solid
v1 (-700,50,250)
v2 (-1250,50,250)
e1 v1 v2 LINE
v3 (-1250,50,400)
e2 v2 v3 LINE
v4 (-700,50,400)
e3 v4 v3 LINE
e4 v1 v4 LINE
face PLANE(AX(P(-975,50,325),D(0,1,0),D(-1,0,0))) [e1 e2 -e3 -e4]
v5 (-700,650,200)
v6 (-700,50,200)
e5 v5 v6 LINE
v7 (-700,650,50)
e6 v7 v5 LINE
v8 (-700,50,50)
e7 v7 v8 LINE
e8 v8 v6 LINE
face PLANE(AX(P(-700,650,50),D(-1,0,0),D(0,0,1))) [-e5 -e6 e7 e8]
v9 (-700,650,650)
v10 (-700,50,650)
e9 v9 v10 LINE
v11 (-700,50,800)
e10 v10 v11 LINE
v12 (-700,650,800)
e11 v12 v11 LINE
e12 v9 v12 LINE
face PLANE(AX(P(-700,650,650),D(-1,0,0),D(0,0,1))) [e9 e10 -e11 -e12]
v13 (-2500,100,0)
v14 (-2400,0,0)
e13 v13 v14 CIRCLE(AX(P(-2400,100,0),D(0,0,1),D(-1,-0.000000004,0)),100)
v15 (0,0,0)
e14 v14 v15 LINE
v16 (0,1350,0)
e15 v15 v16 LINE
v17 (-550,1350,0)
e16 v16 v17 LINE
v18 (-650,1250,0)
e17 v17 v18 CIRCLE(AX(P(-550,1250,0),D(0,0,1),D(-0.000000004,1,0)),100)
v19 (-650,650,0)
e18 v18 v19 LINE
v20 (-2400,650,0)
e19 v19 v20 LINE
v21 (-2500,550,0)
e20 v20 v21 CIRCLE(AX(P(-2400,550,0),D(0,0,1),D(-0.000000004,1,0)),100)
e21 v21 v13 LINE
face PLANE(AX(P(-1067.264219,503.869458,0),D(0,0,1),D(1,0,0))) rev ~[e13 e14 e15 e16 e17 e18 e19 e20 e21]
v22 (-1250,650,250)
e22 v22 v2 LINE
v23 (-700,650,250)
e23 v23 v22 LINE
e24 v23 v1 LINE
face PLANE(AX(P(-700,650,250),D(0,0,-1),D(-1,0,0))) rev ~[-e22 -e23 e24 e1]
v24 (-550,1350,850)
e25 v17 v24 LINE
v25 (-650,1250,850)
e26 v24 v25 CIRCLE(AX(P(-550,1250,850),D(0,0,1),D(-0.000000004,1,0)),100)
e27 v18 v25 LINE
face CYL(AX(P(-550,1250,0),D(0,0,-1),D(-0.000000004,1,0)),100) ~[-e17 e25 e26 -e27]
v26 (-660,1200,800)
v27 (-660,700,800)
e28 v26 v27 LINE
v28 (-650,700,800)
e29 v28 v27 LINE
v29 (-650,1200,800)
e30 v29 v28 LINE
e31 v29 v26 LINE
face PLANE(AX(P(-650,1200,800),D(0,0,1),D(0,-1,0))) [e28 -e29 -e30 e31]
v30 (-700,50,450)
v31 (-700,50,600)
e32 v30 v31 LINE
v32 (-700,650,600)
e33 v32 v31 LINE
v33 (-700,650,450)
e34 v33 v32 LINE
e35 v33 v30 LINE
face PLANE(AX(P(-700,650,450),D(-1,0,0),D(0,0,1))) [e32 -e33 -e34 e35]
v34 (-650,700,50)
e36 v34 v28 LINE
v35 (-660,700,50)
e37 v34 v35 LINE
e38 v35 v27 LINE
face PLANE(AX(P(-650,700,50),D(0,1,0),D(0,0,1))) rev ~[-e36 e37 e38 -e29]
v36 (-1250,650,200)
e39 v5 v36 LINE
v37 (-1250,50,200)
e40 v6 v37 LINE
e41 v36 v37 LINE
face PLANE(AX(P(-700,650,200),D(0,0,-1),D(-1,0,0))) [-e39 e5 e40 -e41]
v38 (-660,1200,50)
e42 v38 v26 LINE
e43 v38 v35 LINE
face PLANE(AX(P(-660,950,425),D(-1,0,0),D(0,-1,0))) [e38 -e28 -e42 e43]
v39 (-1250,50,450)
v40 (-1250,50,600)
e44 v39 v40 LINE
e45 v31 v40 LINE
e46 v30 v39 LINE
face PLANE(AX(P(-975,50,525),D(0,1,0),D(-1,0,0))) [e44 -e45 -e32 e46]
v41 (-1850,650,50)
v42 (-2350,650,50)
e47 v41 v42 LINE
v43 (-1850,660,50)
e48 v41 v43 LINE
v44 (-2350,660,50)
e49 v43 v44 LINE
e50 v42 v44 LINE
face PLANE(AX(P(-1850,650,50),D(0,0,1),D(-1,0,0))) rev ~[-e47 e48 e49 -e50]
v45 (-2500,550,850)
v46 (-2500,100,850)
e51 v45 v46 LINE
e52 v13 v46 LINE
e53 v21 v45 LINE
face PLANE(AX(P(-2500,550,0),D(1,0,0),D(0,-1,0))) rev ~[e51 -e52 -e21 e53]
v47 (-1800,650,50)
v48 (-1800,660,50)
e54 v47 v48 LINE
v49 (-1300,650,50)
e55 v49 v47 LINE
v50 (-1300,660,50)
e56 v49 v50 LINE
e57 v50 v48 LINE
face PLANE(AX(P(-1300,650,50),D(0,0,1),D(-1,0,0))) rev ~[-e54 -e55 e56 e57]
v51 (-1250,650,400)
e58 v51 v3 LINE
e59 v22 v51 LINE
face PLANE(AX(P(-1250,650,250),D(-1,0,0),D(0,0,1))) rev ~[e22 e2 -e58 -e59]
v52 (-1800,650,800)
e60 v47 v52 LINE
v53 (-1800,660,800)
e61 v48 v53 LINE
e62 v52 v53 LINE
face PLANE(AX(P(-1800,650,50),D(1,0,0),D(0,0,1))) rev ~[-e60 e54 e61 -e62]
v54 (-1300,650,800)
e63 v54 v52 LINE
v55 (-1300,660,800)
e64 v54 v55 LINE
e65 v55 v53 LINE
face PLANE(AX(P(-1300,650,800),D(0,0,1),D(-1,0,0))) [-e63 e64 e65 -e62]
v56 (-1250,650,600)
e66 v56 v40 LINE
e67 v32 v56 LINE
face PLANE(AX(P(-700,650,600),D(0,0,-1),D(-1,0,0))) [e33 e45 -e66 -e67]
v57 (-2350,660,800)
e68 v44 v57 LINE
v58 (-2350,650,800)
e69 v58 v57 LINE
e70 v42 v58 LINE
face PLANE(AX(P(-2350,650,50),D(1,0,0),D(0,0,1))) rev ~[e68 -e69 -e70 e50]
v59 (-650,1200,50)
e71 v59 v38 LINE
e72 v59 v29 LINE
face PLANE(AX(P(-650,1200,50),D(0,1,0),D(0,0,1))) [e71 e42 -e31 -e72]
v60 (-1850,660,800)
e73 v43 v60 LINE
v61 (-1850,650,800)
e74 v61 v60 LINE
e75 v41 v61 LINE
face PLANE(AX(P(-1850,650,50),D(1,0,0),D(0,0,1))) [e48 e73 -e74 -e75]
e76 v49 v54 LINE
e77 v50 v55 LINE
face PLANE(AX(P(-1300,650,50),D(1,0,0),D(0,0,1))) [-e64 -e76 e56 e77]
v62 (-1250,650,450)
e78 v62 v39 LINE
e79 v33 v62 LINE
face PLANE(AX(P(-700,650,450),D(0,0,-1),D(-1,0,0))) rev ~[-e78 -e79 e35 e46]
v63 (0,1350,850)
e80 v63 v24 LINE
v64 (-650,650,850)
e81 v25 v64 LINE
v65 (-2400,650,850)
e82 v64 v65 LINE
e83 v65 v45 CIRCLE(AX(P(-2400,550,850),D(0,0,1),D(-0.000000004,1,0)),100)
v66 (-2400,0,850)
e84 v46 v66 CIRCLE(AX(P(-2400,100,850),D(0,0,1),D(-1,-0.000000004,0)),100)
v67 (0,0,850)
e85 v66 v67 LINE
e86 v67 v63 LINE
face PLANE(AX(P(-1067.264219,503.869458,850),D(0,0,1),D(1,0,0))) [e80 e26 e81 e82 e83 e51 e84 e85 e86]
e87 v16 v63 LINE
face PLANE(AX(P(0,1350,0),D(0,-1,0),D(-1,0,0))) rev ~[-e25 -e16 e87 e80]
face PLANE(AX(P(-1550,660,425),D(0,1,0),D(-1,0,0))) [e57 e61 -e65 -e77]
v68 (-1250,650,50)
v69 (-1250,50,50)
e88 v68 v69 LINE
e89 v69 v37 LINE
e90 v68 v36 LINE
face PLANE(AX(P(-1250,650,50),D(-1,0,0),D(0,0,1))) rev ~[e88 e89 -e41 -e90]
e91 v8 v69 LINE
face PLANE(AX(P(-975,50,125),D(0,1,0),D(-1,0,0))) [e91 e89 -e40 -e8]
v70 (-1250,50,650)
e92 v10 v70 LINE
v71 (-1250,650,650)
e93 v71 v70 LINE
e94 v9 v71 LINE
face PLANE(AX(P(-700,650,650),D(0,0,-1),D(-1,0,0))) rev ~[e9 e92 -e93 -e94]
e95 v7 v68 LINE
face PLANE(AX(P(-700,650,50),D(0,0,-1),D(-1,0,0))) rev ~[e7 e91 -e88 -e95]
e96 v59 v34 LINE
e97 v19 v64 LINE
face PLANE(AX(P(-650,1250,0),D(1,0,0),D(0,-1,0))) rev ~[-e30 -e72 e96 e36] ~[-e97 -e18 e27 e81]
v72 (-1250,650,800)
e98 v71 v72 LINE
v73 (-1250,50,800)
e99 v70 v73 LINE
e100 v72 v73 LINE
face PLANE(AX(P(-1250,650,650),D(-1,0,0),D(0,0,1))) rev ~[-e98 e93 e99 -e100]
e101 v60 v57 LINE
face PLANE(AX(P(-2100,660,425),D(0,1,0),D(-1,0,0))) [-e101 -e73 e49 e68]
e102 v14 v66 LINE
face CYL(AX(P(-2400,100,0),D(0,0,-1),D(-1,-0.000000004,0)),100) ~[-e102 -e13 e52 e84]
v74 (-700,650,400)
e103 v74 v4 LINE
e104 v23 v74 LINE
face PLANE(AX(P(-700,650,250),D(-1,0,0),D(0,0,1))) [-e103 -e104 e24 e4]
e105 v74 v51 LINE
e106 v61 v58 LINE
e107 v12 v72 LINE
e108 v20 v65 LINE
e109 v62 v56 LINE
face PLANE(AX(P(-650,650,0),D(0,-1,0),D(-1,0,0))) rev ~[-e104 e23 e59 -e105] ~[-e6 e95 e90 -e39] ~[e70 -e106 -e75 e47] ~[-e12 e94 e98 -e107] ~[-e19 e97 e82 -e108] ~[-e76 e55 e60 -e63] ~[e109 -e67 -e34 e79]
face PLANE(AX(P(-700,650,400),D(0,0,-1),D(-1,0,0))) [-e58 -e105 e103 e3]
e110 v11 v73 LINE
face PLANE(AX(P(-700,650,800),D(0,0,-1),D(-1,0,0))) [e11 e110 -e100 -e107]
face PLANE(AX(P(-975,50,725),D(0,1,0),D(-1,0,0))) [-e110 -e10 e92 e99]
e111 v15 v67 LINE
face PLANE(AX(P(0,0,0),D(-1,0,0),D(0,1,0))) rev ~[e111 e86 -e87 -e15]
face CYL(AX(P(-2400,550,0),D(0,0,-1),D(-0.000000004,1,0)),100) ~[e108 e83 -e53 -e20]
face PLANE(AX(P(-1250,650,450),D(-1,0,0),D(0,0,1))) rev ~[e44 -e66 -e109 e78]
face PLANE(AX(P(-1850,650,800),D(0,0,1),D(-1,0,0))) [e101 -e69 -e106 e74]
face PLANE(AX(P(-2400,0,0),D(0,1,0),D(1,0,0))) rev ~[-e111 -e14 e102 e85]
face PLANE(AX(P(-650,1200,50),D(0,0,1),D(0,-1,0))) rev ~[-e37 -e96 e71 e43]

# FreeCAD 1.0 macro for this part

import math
import FreeCAD as App
import Part
import Sketcher
Q = App.Units.Quantity


def add_polygon(sketch, points):
    """Adds a closed chain of lines whose ends are joined by coincident constraints."""
    first, n = sketch.GeometryCount, len(points)
    for a, b in zip(points, points[1:] + points[:1]):
        sketch.addGeometry(Part.LineSegment(App.Vector(*a, 0), App.Vector(*b, 0)), False)
    for i in range(n):
        sketch.addConstraint(Sketcher.Constraint("Coincident", first + i, 2, first + (i + 1) % n, 1))

doc = App.newDocument("Part")
body = doc.addObject("PartDesign::Body", "Body")

# Sketch on XY plane
sketch1 = body.newObject("Sketcher::SketchObject", "Sketch")
sketch1.AttachmentSupport = (doc.getObject("XY_Plane"), [""])
sketch1.MapMode = "FlatFace"
sketch1.addGeometry(Part.LineSegment(App.Vector(-2400, 0, 0), App.Vector(0, 0, 0)), False)
sketch1.addGeometry(Part.LineSegment(App.Vector(0, 0, 0), App.Vector(0, 1350, 0)), False)
sketch1.addGeometry(Part.LineSegment(App.Vector(0, 1350, 0), App.Vector(-550, 1350, 0)), False)
sketch1.addGeometry(Part.ArcOfCircle(Part.Circle(App.Vector(-550, 1250, 0), App.Vector(0, 0, 1), 100), math.radians(90), math.radians(180)), False)
sketch1.addGeometry(Part.LineSegment(App.Vector(-650, 1250, 0), App.Vector(-650, 650, 0)), False)
sketch1.addGeometry(Part.LineSegment(App.Vector(-650, 650, 0), App.Vector(-2400, 650, 0)), False)
sketch1.addGeometry(Part.ArcOfCircle(Part.Circle(App.Vector(-2400, 550, 0), App.Vector(0, 0, 1), 100), math.radians(90), math.radians(180)), False)
sketch1.addGeometry(Part.LineSegment(App.Vector(-2500, 550, 0), App.Vector(-2500, 100, 0)), False)
sketch1.addGeometry(Part.ArcOfCircle(Part.Circle(App.Vector(-2400, 100, 0), App.Vector(0, 0, 1), 100), math.radians(-180), math.radians(-90)), False)
sketch1.addConstraint(Sketcher.Constraint("Coincident", 0, 2, 1, 1))
sketch1.addConstraint(Sketcher.Constraint("Coincident", 1, 2, 2, 1))
sketch1.addConstraint(Sketcher.Constraint("Tangent", 2, 2, 3, 1))
sketch1.addConstraint(Sketcher.Constraint("Tangent", 3, 2, 4, 1))
sketch1.addConstraint(Sketcher.Constraint("Coincident", 4, 2, 5, 1))
sketch1.addConstraint(Sketcher.Constraint("Tangent", 5, 2, 6, 1))
sketch1.addConstraint(Sketcher.Constraint("Tangent", 6, 2, 7, 1))
sketch1.addConstraint(Sketcher.Constraint("Tangent", 7, 2, 8, 1))
sketch1.addConstraint(Sketcher.Constraint("Tangent", 8, 2, 0, 1))
sketch1.addConstraint(Sketcher.Constraint("Horizontal", 0))
sketch1.addConstraint(Sketcher.Constraint("Vertical", 1))
sketch1.addConstraint(Sketcher.Constraint("Horizontal", 2))
sketch1.addConstraint(Sketcher.Constraint("Vertical", 4))
sketch1.addConstraint(Sketcher.Constraint("Horizontal", 5))
sketch1.addConstraint(Sketcher.Constraint("Vertical", 7))
sketch1.addConstraint(Sketcher.Constraint("Coincident", 0, 2, -1, 1))
sketch1.addConstraint(Sketcher.Constraint("Equal", 3, 6))
sketch1.addConstraint(Sketcher.Constraint("Equal", 6, 8))
sketch1.addConstraint(Sketcher.Constraint("Radius", 3, Q("100 mm")))
sketch1.addConstraint(Sketcher.Constraint("DistanceX", 0, 1, 0, 2, Q("2400 mm")))
sketch1.addConstraint(Sketcher.Constraint("DistanceX", 2, 2, 2, 1, Q("550 mm")))
sketch1.addConstraint(Sketcher.Constraint("DistanceY", 1, 1, 1, 2, Q("1350 mm")))
sketch1.addConstraint(Sketcher.Constraint("DistanceY", 4, 2, 4, 1, Q("600 mm")))
pad1 = body.newObject("PartDesign::Pad", "Pad")
pad1.Profile = sketch1
pad1.Length = 850

# Sketch on XZ plane
sketch2 = body.newObject("Sketcher::SketchObject", "Sketch001")
sketch2.AttachmentSupport = (doc.getObject("XZ_Plane"), [""])
sketch2.MapMode = "FlatFace"
sketch2.AttachmentOffset = App.Placement(App.Vector(0, 0, -650), App.Rotation())
add_polygon(sketch2, [(-700, 800), (-700, 650), (-1250, 650), (-1250, 800)])  # lines 0-3
add_polygon(sketch2, [(-700, 600), (-700, 450), (-1250, 450), (-1250, 600)])  # lines 4-7
add_polygon(sketch2, [(-700, 400), (-700, 250), (-1250, 250), (-1250, 400)])  # lines 8-11
add_polygon(sketch2, [(-700, 200), (-700, 50), (-1250, 50), (-1250, 200)])  # lines 12-15
sketch2.addConstraint(Sketcher.Constraint("Vertical", 0))
sketch2.addConstraint(Sketcher.Constraint("Horizontal", 1))
sketch2.addConstraint(Sketcher.Constraint("Vertical", 2))
sketch2.addConstraint(Sketcher.Constraint("Horizontal", 3))
sketch2.addConstraint(Sketcher.Constraint("Vertical", 4))
sketch2.addConstraint(Sketcher.Constraint("Horizontal", 5))
sketch2.addConstraint(Sketcher.Constraint("Vertical", 6))
sketch2.addConstraint(Sketcher.Constraint("Horizontal", 7))
sketch2.addConstraint(Sketcher.Constraint("Vertical", 8))
sketch2.addConstraint(Sketcher.Constraint("Horizontal", 9))
sketch2.addConstraint(Sketcher.Constraint("Vertical", 10))
sketch2.addConstraint(Sketcher.Constraint("Horizontal", 11))
sketch2.addConstraint(Sketcher.Constraint("Vertical", 12))
sketch2.addConstraint(Sketcher.Constraint("Horizontal", 13))
sketch2.addConstraint(Sketcher.Constraint("Vertical", 14))
sketch2.addConstraint(Sketcher.Constraint("Horizontal", 15))
sketch2.addConstraint(Sketcher.Constraint("Vertical", 3, 2, 4, 2))
sketch2.addConstraint(Sketcher.Constraint("Vertical", 2, 2, 5, 2))
sketch2.addConstraint(Sketcher.Constraint("Vertical", 7, 2, 8, 2))
sketch2.addConstraint(Sketcher.Constraint("Vertical", 6, 2, 9, 2))
sketch2.addConstraint(Sketcher.Constraint("Vertical", 11, 2, 12, 2))
sketch2.addConstraint(Sketcher.Constraint("Vertical", 10, 2, 13, 2))
sketch2.addConstraint(Sketcher.Constraint("Equal", 2, 4))
sketch2.addConstraint(Sketcher.Constraint("Equal", 6, 8))
sketch2.addConstraint(Sketcher.Constraint("Equal", 10, 12))
sketch2.addConstraint(Sketcher.Constraint("DistanceX", 1, 2, 1, 1, Q("550 mm")))
sketch2.addConstraint(Sketcher.Constraint("DistanceY", 0, 2, 0, 1, Q("150 mm")))
sketch2.addConstraint(Sketcher.Constraint("DistanceX", 0, 2, -1, 1, Q("700 mm")))
sketch2.addConstraint(Sketcher.Constraint("DistanceY", -1, 1, 0, 2, Q("650 mm")))
sketch2.addConstraint(Sketcher.Constraint("DistanceY", -1, 1, 4, 2, Q("450 mm")))
sketch2.addConstraint(Sketcher.Constraint("DistanceY", -1, 1, 8, 2, Q("250 mm")))
sketch2.addConstraint(Sketcher.Constraint("DistanceY", -1, 1, 12, 2, Q("50 mm")))
pocket1 = body.newObject("PartDesign::Pocket", "Pocket")
pocket1.Profile = sketch2
pocket1.Length = 600
pocket1.Reversed = True

# Sketch on XZ plane
sketch3 = body.newObject("Sketcher::SketchObject", "Sketch002")
sketch3.AttachmentSupport = (doc.getObject("XZ_Plane"), [""])
sketch3.MapMode = "FlatFace"
sketch3.AttachmentOffset = App.Placement(App.Vector(0, 0, -650), App.Rotation())
add_polygon(sketch3, [(-1300, 800), (-1300, 50), (-1800, 50), (-1800, 800)])  # lines 0-3
add_polygon(sketch3, [(-1850, 800), (-1850, 50), (-2350, 50), (-2350, 800)])  # lines 4-7
sketch3.addConstraint(Sketcher.Constraint("Vertical", 0))
sketch3.addConstraint(Sketcher.Constraint("Horizontal", 1))
sketch3.addConstraint(Sketcher.Constraint("Vertical", 2))
sketch3.addConstraint(Sketcher.Constraint("Horizontal", 3))
sketch3.addConstraint(Sketcher.Constraint("Vertical", 4))
sketch3.addConstraint(Sketcher.Constraint("Horizontal", 5))
sketch3.addConstraint(Sketcher.Constraint("Vertical", 6))
sketch3.addConstraint(Sketcher.Constraint("Horizontal", 7))
sketch3.addConstraint(Sketcher.Constraint("Horizontal", 1, 2, 4, 2))
sketch3.addConstraint(Sketcher.Constraint("Horizontal", 3, 2, 6, 2))
sketch3.addConstraint(Sketcher.Constraint("Equal", 3, 5))
sketch3.addConstraint(Sketcher.Constraint("DistanceX", 1, 2, 1, 1, Q("500 mm")))
sketch3.addConstraint(Sketcher.Constraint("DistanceY", 0, 2, 0, 1, Q("750 mm")))
sketch3.addConstraint(Sketcher.Constraint("DistanceX", 0, 2, -1, 1, Q("1300 mm")))
sketch3.addConstraint(Sketcher.Constraint("DistanceY", -1, 1, 0, 2, Q("50 mm")))
sketch3.addConstraint(Sketcher.Constraint("DistanceX", 4, 2, -1, 1, Q("1850 mm")))
pad2 = body.newObject("PartDesign::Pad", "Pad001")
pad2.Profile = sketch3
pad2.Length = 10
pad2.Reversed = True

# Sketch on YZ plane
sketch4 = body.newObject("Sketcher::SketchObject", "Sketch003")
sketch4.AttachmentSupport = (doc.getObject("YZ_Plane"), [""])
sketch4.MapMode = "FlatFace"
sketch4.AttachmentOffset = App.Placement(App.Vector(0, 0, -650), App.Rotation())
add_polygon(sketch4, [(1200, 800), (1200, 50), (700, 50), (700, 800)])  # lines 0-3
sketch4.addConstraint(Sketcher.Constraint("Vertical", 0))
sketch4.addConstraint(Sketcher.Constraint("Horizontal", 1))
sketch4.addConstraint(Sketcher.Constraint("Vertical", 2))
sketch4.addConstraint(Sketcher.Constraint("Horizontal", 3))
sketch4.addConstraint(Sketcher.Constraint("DistanceX", 1, 2, 1, 1, Q("500 mm")))
sketch4.addConstraint(Sketcher.Constraint("DistanceY", 0, 2, 0, 1, Q("750 mm")))
sketch4.addConstraint(Sketcher.Constraint("DistanceX", -1, 1, 0, 2, Q("1200 mm")))
sketch4.addConstraint(Sketcher.Constraint("DistanceY", -1, 1, 0, 2, Q("50 mm")))
pad3 = body.newObject("PartDesign::Pad", "Pad002")
pad3.Profile = sketch4
pad3.Length = 10
pad3.Reversed = True

doc.recompute()
